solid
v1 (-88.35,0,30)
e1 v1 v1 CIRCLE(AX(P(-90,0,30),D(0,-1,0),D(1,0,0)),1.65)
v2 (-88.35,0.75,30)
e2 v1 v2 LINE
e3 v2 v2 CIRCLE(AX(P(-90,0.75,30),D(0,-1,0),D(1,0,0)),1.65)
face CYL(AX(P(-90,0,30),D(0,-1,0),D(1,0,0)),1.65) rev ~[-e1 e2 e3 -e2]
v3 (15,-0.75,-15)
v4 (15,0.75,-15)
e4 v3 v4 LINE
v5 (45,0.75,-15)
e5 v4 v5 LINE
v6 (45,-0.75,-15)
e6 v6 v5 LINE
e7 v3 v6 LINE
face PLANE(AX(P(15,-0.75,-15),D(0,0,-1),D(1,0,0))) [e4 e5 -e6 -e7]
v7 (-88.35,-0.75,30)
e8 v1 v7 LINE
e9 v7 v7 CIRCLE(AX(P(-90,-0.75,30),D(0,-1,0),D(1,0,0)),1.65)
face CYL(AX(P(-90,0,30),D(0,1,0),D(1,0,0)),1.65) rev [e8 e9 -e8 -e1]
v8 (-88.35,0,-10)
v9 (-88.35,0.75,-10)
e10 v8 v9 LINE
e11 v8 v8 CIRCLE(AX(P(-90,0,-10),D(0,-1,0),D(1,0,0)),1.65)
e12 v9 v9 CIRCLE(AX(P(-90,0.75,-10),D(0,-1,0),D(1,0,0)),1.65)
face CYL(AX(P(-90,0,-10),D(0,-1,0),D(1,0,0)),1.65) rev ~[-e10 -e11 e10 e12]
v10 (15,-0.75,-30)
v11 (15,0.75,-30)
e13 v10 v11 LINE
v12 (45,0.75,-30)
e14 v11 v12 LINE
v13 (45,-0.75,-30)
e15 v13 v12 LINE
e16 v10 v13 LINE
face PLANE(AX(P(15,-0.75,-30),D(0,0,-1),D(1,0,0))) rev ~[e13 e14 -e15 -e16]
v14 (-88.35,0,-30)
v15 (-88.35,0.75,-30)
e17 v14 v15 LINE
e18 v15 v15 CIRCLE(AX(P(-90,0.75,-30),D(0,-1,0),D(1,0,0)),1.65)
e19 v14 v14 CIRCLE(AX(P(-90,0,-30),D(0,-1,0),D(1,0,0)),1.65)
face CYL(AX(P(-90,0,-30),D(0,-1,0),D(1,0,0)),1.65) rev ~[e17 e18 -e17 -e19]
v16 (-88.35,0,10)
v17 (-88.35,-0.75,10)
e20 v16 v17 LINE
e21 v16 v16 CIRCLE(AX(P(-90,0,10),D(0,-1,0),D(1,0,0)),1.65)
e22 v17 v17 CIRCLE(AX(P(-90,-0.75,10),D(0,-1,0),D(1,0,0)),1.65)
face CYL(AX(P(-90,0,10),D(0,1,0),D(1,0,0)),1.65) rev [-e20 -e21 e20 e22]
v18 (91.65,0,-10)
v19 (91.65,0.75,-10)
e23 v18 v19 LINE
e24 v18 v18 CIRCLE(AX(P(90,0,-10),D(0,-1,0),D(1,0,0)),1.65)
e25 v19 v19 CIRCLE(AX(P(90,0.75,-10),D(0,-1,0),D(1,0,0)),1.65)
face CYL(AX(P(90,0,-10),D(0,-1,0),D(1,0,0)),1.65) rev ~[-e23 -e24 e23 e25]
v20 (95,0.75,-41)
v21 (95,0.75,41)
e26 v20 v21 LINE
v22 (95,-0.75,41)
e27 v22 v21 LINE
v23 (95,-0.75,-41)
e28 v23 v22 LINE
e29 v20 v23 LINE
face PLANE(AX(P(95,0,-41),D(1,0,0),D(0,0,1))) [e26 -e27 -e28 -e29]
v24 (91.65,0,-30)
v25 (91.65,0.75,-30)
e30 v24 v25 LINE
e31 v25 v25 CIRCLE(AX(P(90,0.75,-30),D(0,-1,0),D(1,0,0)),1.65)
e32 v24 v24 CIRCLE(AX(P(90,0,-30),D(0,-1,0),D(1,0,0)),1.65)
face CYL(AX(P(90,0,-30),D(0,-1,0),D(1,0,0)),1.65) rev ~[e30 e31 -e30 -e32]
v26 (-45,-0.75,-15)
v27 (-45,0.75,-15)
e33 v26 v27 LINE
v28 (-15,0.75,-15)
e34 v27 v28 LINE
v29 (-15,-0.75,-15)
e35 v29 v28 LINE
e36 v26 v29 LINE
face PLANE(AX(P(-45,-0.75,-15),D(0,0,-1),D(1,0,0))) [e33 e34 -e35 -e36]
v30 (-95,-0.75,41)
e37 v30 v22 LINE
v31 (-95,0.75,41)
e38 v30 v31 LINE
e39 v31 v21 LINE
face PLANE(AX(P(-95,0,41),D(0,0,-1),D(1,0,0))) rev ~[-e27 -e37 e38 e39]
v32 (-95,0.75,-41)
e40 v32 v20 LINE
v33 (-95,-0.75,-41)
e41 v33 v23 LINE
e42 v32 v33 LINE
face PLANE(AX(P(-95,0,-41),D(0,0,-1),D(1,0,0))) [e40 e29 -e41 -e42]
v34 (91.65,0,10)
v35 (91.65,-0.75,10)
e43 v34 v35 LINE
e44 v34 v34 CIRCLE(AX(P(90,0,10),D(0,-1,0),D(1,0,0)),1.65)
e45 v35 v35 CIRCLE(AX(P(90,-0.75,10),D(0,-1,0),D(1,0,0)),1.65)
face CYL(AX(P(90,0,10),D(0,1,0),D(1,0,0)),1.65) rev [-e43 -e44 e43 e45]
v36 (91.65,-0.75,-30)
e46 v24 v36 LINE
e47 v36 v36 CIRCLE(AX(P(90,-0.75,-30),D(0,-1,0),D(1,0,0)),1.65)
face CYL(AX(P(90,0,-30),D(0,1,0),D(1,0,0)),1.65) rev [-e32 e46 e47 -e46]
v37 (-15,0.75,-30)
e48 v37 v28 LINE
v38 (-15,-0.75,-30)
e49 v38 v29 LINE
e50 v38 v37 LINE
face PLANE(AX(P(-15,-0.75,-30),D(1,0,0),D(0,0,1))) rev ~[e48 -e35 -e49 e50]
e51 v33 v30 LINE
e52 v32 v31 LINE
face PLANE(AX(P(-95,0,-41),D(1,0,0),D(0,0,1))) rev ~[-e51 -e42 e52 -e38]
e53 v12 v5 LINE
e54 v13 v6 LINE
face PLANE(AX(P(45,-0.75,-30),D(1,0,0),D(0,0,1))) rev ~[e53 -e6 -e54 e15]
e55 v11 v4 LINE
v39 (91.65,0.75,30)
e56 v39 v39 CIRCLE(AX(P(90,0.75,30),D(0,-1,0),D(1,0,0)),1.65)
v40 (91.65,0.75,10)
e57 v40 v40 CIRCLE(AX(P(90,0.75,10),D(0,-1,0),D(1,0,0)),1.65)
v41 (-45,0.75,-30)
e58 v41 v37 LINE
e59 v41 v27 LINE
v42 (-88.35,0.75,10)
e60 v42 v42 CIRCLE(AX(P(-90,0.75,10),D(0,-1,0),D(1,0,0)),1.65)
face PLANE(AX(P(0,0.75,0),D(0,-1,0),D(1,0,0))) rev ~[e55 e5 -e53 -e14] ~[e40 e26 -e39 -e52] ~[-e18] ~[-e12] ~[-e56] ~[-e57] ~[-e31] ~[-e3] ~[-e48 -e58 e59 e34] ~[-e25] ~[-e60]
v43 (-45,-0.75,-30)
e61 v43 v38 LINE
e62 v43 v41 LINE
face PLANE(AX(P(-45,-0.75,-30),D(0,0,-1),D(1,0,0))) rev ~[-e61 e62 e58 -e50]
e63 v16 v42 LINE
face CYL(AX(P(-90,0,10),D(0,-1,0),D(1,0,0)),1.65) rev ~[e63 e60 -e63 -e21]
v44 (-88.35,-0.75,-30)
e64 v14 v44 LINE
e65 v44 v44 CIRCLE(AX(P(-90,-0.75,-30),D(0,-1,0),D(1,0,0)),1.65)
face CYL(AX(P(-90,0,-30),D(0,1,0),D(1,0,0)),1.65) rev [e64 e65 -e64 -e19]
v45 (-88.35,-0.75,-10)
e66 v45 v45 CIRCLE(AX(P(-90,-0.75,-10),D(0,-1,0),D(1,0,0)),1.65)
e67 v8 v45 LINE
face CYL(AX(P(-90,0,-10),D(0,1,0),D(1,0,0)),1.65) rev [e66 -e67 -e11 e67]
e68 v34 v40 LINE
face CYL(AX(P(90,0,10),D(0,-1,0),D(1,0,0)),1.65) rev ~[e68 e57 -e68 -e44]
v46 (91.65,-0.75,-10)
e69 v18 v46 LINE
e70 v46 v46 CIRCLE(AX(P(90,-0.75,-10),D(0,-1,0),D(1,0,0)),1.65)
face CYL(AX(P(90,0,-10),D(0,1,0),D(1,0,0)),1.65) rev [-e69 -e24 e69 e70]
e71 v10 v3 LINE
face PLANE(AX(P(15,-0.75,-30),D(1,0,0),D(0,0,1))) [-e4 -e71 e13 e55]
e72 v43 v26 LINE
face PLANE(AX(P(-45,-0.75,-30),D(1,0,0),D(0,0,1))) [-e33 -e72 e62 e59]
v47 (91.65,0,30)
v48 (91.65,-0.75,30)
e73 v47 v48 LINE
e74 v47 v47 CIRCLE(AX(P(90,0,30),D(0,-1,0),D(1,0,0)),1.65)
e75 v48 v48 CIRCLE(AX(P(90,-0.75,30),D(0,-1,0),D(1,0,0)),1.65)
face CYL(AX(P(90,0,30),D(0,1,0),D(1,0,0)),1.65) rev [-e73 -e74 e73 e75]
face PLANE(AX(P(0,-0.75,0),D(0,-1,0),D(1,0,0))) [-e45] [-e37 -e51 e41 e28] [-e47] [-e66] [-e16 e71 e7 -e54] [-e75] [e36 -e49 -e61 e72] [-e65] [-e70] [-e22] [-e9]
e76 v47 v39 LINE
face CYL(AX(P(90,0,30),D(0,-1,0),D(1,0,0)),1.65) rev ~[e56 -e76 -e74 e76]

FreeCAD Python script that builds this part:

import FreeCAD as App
import Part
import Sketcher

V = App.Vector


def add_polygon(sketch, points):
    """Adds a closed chain of lines whose ends are joined by coincident constraints."""
    first, n = sketch.GeometryCount, len(points)
    for a, b in zip(points, points[1:] + points[:1]):
        sketch.addGeometry(Part.LineSegment(App.Vector(*a, 0), App.Vector(*b, 0)), False)
    for i in range(n):
        sketch.addConstraint(Sketcher.Constraint("Coincident", first + i, 2, first + (i + 1) % n, 1))

doc = App.newDocument("Part")
body = doc.addObject("PartDesign::Body", "Body")

# Sketch on XZ plane
sketch1 = body.newObject("Sketcher::SketchObject", "Sketch")
sketch1.AttachmentSupport = (doc.getObject("XZ_Plane"), [""])
sketch1.MapMode = "FlatFace"
add_polygon(sketch1, [(-95, 41), (-95, -41), (95, -41), (95, 41)])  # lines 0-3
sketch1.addGeometry(Part.Circle(V(-90, -30, 0), V(0, 0, 1), 1.65), False)  # 4
sketch1.addGeometry(Part.Circle(V(-90, -10, 0), V(0, 0, 1), 1.65), False)  # 5
sketch1.addGeometry(Part.Circle(V(90, -30, 0), V(0, 0, 1), 1.65), False)  # 6
sketch1.addGeometry(Part.Circle(V(90, -10, 0), V(0, 0, 1), 1.65), False)  # 7
sketch1.addGeometry(Part.Circle(V(-90, 10, 0), V(0, 0, 1), 1.65), False)  # 8
sketch1.addGeometry(Part.Circle(V(-90, 30, 0), V(0, 0, 1), 1.65), False)  # 9
sketch1.addGeometry(Part.Circle(V(90, 10, 0), V(0, 0, 1), 1.65), False)  # 10
sketch1.addGeometry(Part.Circle(V(90, 30, 0), V(0, 0, 1), 1.65), False)  # 11
sketch1.addConstraint(Sketcher.Constraint("Vertical", 0))
sketch1.addConstraint(Sketcher.Constraint("Horizontal", 1))
sketch1.addConstraint(Sketcher.Constraint("Vertical", 2))
sketch1.addConstraint(Sketcher.Constraint("Horizontal", 3))
sketch1.addConstraint(Sketcher.Constraint("Equal", 4, 5))
sketch1.addConstraint(Sketcher.Constraint("Equal", 5, 6))
sketch1.addConstraint(Sketcher.Constraint("Equal", 6, 7))
sketch1.addConstraint(Sketcher.Constraint("Equal", 7, 8))
sketch1.addConstraint(Sketcher.Constraint("Equal", 8, 9))
sketch1.addConstraint(Sketcher.Constraint("Equal", 9, 10))
sketch1.addConstraint(Sketcher.Constraint("Equal", 10, 11))
sketch1.addConstraint(Sketcher.Constraint("Symmetric", 7, 3, 8, 3, -1, 1))
sketch1.addConstraint(Sketcher.Constraint("Symmetric", 6, 3, 9, 3, -1, 1))
sketch1.addConstraint(Sketcher.Constraint("Symmetric", 5, 3, 10, 3, -1, 1))
sketch1.addConstraint(Sketcher.Constraint("Symmetric", 4, 3, 11, 3, -1, 1))
sketch1.addConstraint(Sketcher.Constraint("Symmetric", 0, 2, 2, 2, -1, 1))
sketch1.addConstraint(Sketcher.Constraint("Symmetric", 4, 3, 6, 3, -2))
sketch1.addConstraint(Sketcher.Constraint("Symmetric", 5, 3, 7, 3, -2))
sketch1.addConstraint(Sketcher.Constraint("Vertical", 4, 3, 5, 3))
sketch1.addConstraint(Sketcher.Constraint("Diameter", 4, 3.3))
sketch1.addConstraint(Sketcher.Constraint("DistanceX", 1, 1, 1, 2, 190.0))
sketch1.addConstraint(Sketcher.Constraint("DistanceY", 0, 2, 0, 1, 82.0))
sketch1.addConstraint(Sketcher.Constraint("DistanceX", 4, 3, -1, 1, 90.0))
sketch1.addConstraint(Sketcher.Constraint("DistanceY", 4, 3, -1, 1, 30.0))
sketch1.addConstraint(Sketcher.Constraint("DistanceY", 5, 3, -1, 1, 10.0))
pad1 = body.newObject("PartDesign::Pad", "Pad")
pad1.Profile = sketch1
pad1.Type = "TwoLengths"
pad1.Length = 0.75
pad1.Length2 = 0.75

# Sketch on XZ plane
sketch2 = body.newObject("Sketcher::SketchObject", "Sketch001")
sketch2.AttachmentSupport = (doc.getObject("XZ_Plane"), [""])
sketch2.MapMode = "FlatFace"
sketch2.AttachmentOffset = App.Placement(V(0, 0, 0.75), App.Rotation())
add_polygon(sketch2, [(-45, -15), (-45, -30), (-15, -30), (-15, -15)])  # lines 0-3
add_polygon(sketch2, [(15, -15), (15, -30), (45, -30), (45, -15)])  # lines 4-7
sketch2.addConstraint(Sketcher.Constraint("Vertical", 0))
sketch2.addConstraint(Sketcher.Constraint("Horizontal", 1))
sketch2.addConstraint(Sketcher.Constraint("Vertical", 2))
sketch2.addConstraint(Sketcher.Constraint("Horizontal", 3))
sketch2.addConstraint(Sketcher.Constraint("Vertical", 4))
sketch2.addConstraint(Sketcher.Constraint("Horizontal", 5))
sketch2.addConstraint(Sketcher.Constraint("Vertical", 6))
sketch2.addConstraint(Sketcher.Constraint("Horizontal", 7))
sketch2.addConstraint(Sketcher.Constraint("Symmetric", 1, 2, 4, 2, -2))
sketch2.addConstraint(Sketcher.Constraint("Symmetric", 3, 2, 6, 2, -2))
sketch2.addConstraint(Sketcher.Constraint("DistanceX", 1, 1, 1, 2, 30.0))
sketch2.addConstraint(Sketcher.Constraint("DistanceY", 0, 2, 0, 1, 15.0))
sketch2.addConstraint(Sketcher.Constraint("DistanceX", 0, 2, -1, 1, 45.0))
sketch2.addConstraint(Sketcher.Constraint("DistanceY", 0, 2, -1, 1, 30.0))
pocket1 = body.newObject("PartDesign::Pocket", "Pocket")
pocket1.Profile = sketch2
pocket1.Length = 5

doc.recompute()
